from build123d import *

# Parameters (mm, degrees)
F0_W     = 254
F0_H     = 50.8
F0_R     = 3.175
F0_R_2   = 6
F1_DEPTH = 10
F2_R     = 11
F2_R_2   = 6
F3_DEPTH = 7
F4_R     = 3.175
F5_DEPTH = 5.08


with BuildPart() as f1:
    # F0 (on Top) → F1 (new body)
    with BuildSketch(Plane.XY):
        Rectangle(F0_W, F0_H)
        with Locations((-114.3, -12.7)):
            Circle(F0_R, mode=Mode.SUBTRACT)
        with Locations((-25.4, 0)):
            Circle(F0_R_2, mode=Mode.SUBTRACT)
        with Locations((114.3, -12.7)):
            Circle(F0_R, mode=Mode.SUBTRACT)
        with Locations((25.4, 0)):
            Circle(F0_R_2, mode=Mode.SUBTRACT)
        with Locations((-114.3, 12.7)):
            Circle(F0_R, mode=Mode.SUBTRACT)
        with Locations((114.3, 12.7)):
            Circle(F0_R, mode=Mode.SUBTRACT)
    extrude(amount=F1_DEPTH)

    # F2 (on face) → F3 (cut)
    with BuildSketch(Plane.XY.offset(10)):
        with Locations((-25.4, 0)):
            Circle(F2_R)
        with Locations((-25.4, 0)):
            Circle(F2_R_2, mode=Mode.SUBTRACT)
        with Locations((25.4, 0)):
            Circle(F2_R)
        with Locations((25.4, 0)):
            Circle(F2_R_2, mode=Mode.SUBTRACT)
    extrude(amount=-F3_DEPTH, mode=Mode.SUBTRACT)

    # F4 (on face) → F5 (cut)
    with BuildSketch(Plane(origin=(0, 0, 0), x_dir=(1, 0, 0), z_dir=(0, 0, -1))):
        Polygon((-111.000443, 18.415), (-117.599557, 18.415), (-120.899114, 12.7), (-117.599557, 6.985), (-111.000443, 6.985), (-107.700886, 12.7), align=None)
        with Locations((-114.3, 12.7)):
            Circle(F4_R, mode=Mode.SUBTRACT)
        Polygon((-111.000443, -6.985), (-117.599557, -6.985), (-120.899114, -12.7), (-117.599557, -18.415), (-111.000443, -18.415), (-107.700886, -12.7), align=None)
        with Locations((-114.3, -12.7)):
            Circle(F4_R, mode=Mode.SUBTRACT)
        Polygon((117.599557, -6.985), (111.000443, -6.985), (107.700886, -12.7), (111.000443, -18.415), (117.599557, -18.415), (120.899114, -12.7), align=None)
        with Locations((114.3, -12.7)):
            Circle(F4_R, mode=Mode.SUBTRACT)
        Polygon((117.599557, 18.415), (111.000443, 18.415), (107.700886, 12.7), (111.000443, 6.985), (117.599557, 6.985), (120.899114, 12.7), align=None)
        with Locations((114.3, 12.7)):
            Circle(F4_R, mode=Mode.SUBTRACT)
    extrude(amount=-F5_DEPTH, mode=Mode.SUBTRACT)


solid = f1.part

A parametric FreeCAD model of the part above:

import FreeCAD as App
import Part
import Sketcher
Q = App.Units.Quantity


def add_polygon(sketch, points):
    """Adds a closed chain of lines whose ends are joined by coincident constraints."""
    first, n = sketch.GeometryCount, len(points)
    for a, b in zip(points, points[1:] + points[:1]):
        sketch.addGeometry(Part.LineSegment(App.Vector(*a, 0), App.Vector(*b, 0)), False)
    for i in range(n):
        sketch.addConstraint(Sketcher.Constraint("Coincident", first + i, 2, first + (i + 1) % n, 1))

doc = App.newDocument("Part")
body = doc.addObject("PartDesign::Body", "Body")

# Sketch on XY plane
sketch1 = body.newObject("Sketcher::SketchObject", "Sketch")
sketch1.AttachmentSupport = (doc.getObject("XY_Plane"), [""])
sketch1.MapMode = "FlatFace"
add_polygon(sketch1, [(-127, 25.4), (-127, -25.4), (127, -25.4), (127, 25.4)])  # lines 0-3
sketch1.addGeometry(Part.Circle(App.Vector(-114.3, -12.7, 0), App.Vector(0, 0, 1), 3.2), False)  # 4
sketch1.addGeometry(Part.Circle(App.Vector(114.3, -12.7, 0), App.Vector(0, 0, 1), 3.2), False)  # 5
sketch1.addGeometry(Part.Circle(App.Vector(-25.4, 0, 0), App.Vector(0, 0, 1), 6), False)  # 6
sketch1.addGeometry(Part.Circle(App.Vector(-114.3, 12.7, 0), App.Vector(0, 0, 1), 3.2), False)  # 7
sketch1.addGeometry(Part.Circle(App.Vector(25.4, 0, 0), App.Vector(0, 0, 1), 6), False)  # 8
sketch1.addGeometry(Part.Circle(App.Vector(114.3, 12.7, 0), App.Vector(0, 0, 1), 3.2), False)  # 9
sketch1.addConstraint([
    Sketcher.Constraint("Vertical", 0),
    Sketcher.Constraint("Horizontal", 1),
    Sketcher.Constraint("Vertical", 2),
    Sketcher.Constraint("Horizontal", 3),
    Sketcher.Constraint("Equal", 4, 5),
    Sketcher.Constraint("Equal", 5, 7),
    Sketcher.Constraint("Equal", 6, 8),
    Sketcher.Constraint("Equal", 7, 9),
    Sketcher.Constraint("Symmetric", 5, 3, 7, 3, -1, 1),
    Sketcher.Constraint("Symmetric", 6, 3, 8, 3, -1, 1),
    Sketcher.Constraint("Symmetric", 4, 3, 9, 3, -1, 1),
    Sketcher.Constraint("Symmetric", 0, 2, 2, 2, -1, 1),
    Sketcher.Constraint("Symmetric", 4, 3, 5, 3, -2),
    Sketcher.Constraint("PointOnObject", 6, 3, -1),
    Sketcher.Constraint("Diameter", 6, Q("12 mm")),
    Sketcher.Constraint("Diameter", 4, Q("6.35 mm")),
    Sketcher.Constraint("DistanceX", 1, 1, 1, 2, Q("254 mm")),
    Sketcher.Constraint("DistanceY", 0, 2, 0, 1, Q("50.8 mm")),
    Sketcher.Constraint("DistanceX", 4, 3, -1, 1, Q("114.3 mm")),
    Sketcher.Constraint("DistanceY", 4, 3, -1, 1, Q("12.7 mm")),
    Sketcher.Constraint("DistanceX", 6, 3, -1, 1, Q("25.4 mm")),
])
pad1 = body.newObject("PartDesign::Pad", "Pad")
pad1.Profile = sketch1
pad1.Length = 10

# Sketch on XY plane
sketch2 = body.newObject("Sketcher::SketchObject", "Sketch001")
sketch2.AttachmentSupport = (doc.getObject("XY_Plane"), [""])
sketch2.MapMode = "FlatFace"
sketch2.AttachmentOffset = App.Placement(App.Vector(0, 0, 10), App.Rotation())
sketch2.addGeometry([
    Part.Circle(App.Vector(-25, 0, 0), App.Vector(0, 0, 1), 11),
    Part.Circle(App.Vector(-25, 0, 0), App.Vector(0, 0, 1), 6),
    Part.Circle(App.Vector(25, 0, 0), App.Vector(0, 0, 1), 11),
    Part.Circle(App.Vector(25, 0, 0), App.Vector(0, 0, 1), 6),
], False)
sketch2.addConstraint([
    Sketcher.Constraint("Coincident", 1, 3, 0, 3),
    Sketcher.Constraint("Coincident", 3, 3, 2, 3),
    Sketcher.Constraint("Equal", 0, 2),
    Sketcher.Constraint("Equal", 1, 3),
    Sketcher.Constraint("Symmetric", 0, 3, 2, 3, -1, 1),
    Sketcher.Constraint("PointOnObject", 0, 3, -1),
    Sketcher.Constraint("Diameter", 0, Q("22 mm")),
    Sketcher.Constraint("Diameter", 1, Q("12 mm")),
    Sketcher.Constraint("DistanceX", 0, 3, -1, 1, Q("25.4 mm")),
])
pocket1 = body.newObject("PartDesign::Pocket", "Pocket")
pocket1.Profile = sketch2
pocket1.Length = 7

# Sketch on XY plane
sketch3 = body.newObject("Sketcher::SketchObject", "Sketch002")
sketch3.AttachmentSupport = (doc.getObject("XY_Plane"), [""])
sketch3.MapMode = "FlatFace"
add_polygon(sketch3, [(-111, -18.4), (-117.6, -18.4), (-120.9, -12.7), (-117.6, -7), (-111, -7), (-107.7, -12.7)])  # lines 0-5
sketch3.addGeometry(Part.Circle(App.Vector(-114.3, -12.7, 0), App.Vector(0, 0, 1), 3.2), False)  # 6
add_polygon(sketch3, [(-111, 7), (-117.6, 7), (-120.9, 12.7), (-117.6, 18.4), (-111, 18.4), (-107.7, 12.7)])  # lines 7-12
sketch3.addGeometry(Part.Circle(App.Vector(-114.3, 12.7, 0), App.Vector(0, 0, 1), 3.2), False)  # 13
add_polygon(sketch3, [(117.6, 7), (111, 7), (107.7, 12.7), (111, 18.4), (117.6, 18.4), (120.9, 12.7)])  # lines 14-19
sketch3.addGeometry(Part.Circle(App.Vector(114.3, 12.7, 0), App.Vector(0, 0, 1), 3.2), False)  # 20
add_polygon(sketch3, [(117.6, -18.4), (111, -18.4), (107.7, -12.7), (111, -7), (117.6, -7), (120.9, -12.7)])  # lines 21-26
sketch3.addGeometry(Part.Circle(App.Vector(114.3, -12.7, 0), App.Vector(0, 0, 1), 3.2), False)  # 27
sketch3.addConstraint([
    Sketcher.Constraint("Horizontal", 0),
    Sketcher.Constraint("Horizontal", 3),
    Sketcher.Constraint("Horizontal", 7),
    Sketcher.Constraint("Horizontal", 10),
    Sketcher.Constraint("Horizontal", 14),
    Sketcher.Constraint("Horizontal", 17),
    Sketcher.Constraint("Horizontal", 21),
    Sketcher.Constraint("Horizontal", 24),
    Sketcher.Constraint("Equal", 6, 13),
    Sketcher.Constraint("Equal", 13, 20),
    Sketcher.Constraint("Equal", 20, 27),
    Sketcher.Constraint("Symmetric", 6, 3, 20, 3, -1, 1),
    Sketcher.Constraint("Symmetric", 13, 3, 27, 3, -1, 1),
    Sketcher.Constraint("Symmetric", 3, 2, 14, 2, -1, 1),
    Sketcher.Constraint("Symmetric", 4, 2, 15, 2, -1, 1),
    Sketcher.Constraint("Symmetric", 5, 2, 16, 2, -1, 1),
    Sketcher.Constraint("Symmetric", 1, 2, 18, 2, -1, 1),
    Sketcher.Constraint("Symmetric", 10, 2, 21, 2, -1, 1),
    Sketcher.Constraint("Symmetric", 11, 2, 22, 2, -1, 1),
    Sketcher.Constraint("Symmetric", 12, 2, 23, 2, -1, 1),
    Sketcher.Constraint("Symmetric", 8, 2, 25, 2, -1, 1),
    Sketcher.Constraint("Symmetric", 13, 3, 20, 3, -2),
    Sketcher.Constraint("Symmetric", 12, 2, 14, 2, -2),
    Sketcher.Constraint("Symmetric", 11, 2, 15, 2, -2),
    Sketcher.Constraint("Symmetric", 10, 2, 16, 2, -2),
    Sketcher.Constraint("Symmetric", 8, 2, 18, 2, -2),
    Sketcher.Constraint("Parallel", 1, 4),
    Sketcher.Constraint("Parallel", 2, 5),
    Sketcher.Constraint("Parallel", 4, 8),
    Sketcher.Constraint("Parallel", 5, 9),
    Sketcher.Constraint("Parallel", 8, 11),
    Sketcher.Constraint("Parallel", 15, 18),
    Sketcher.Constraint("Parallel", 16, 19),
    Sketcher.Constraint("Parallel", 22, 25),
    Sketcher.Constraint("Parallel", 23, 26),
    Sketcher.Constraint("Horizontal", 27, 3, 1, 2),
    Sketcher.Constraint("Horizontal", 1, 2, 4, 2),
    Sketcher.Constraint("Vertical", 0, 2, 2, 2),
    Sketcher.Constraint("Diameter", 6, Q("6.35 mm")),
    Sketcher.Constraint("Angle", 1, Q("120.000002 deg")),
    Sketcher.Constraint("DistanceX", 6, 3, -1, 1, Q("114.3 mm")),
    Sketcher.Constraint("DistanceY", 6, 3, -1, 1, Q("12.7 mm")),
    Sketcher.Constraint("DistanceY", 0, 2, 2, 2, Q("11.43 mm")),
    Sketcher.Constraint("DistanceX", 0, 2, 0, 1, Q("6.599114 mm")),
    Sketcher.Constraint("DistanceX", 11, 2, 14, 2, Q("218.701329 mm")),
])
pocket2 = body.newObject("PartDesign::Pocket", "Pocket001")
pocket2.Profile = sketch3
pocket2.Length = 5.08
pocket2.Reversed = True

doc.recompute()
